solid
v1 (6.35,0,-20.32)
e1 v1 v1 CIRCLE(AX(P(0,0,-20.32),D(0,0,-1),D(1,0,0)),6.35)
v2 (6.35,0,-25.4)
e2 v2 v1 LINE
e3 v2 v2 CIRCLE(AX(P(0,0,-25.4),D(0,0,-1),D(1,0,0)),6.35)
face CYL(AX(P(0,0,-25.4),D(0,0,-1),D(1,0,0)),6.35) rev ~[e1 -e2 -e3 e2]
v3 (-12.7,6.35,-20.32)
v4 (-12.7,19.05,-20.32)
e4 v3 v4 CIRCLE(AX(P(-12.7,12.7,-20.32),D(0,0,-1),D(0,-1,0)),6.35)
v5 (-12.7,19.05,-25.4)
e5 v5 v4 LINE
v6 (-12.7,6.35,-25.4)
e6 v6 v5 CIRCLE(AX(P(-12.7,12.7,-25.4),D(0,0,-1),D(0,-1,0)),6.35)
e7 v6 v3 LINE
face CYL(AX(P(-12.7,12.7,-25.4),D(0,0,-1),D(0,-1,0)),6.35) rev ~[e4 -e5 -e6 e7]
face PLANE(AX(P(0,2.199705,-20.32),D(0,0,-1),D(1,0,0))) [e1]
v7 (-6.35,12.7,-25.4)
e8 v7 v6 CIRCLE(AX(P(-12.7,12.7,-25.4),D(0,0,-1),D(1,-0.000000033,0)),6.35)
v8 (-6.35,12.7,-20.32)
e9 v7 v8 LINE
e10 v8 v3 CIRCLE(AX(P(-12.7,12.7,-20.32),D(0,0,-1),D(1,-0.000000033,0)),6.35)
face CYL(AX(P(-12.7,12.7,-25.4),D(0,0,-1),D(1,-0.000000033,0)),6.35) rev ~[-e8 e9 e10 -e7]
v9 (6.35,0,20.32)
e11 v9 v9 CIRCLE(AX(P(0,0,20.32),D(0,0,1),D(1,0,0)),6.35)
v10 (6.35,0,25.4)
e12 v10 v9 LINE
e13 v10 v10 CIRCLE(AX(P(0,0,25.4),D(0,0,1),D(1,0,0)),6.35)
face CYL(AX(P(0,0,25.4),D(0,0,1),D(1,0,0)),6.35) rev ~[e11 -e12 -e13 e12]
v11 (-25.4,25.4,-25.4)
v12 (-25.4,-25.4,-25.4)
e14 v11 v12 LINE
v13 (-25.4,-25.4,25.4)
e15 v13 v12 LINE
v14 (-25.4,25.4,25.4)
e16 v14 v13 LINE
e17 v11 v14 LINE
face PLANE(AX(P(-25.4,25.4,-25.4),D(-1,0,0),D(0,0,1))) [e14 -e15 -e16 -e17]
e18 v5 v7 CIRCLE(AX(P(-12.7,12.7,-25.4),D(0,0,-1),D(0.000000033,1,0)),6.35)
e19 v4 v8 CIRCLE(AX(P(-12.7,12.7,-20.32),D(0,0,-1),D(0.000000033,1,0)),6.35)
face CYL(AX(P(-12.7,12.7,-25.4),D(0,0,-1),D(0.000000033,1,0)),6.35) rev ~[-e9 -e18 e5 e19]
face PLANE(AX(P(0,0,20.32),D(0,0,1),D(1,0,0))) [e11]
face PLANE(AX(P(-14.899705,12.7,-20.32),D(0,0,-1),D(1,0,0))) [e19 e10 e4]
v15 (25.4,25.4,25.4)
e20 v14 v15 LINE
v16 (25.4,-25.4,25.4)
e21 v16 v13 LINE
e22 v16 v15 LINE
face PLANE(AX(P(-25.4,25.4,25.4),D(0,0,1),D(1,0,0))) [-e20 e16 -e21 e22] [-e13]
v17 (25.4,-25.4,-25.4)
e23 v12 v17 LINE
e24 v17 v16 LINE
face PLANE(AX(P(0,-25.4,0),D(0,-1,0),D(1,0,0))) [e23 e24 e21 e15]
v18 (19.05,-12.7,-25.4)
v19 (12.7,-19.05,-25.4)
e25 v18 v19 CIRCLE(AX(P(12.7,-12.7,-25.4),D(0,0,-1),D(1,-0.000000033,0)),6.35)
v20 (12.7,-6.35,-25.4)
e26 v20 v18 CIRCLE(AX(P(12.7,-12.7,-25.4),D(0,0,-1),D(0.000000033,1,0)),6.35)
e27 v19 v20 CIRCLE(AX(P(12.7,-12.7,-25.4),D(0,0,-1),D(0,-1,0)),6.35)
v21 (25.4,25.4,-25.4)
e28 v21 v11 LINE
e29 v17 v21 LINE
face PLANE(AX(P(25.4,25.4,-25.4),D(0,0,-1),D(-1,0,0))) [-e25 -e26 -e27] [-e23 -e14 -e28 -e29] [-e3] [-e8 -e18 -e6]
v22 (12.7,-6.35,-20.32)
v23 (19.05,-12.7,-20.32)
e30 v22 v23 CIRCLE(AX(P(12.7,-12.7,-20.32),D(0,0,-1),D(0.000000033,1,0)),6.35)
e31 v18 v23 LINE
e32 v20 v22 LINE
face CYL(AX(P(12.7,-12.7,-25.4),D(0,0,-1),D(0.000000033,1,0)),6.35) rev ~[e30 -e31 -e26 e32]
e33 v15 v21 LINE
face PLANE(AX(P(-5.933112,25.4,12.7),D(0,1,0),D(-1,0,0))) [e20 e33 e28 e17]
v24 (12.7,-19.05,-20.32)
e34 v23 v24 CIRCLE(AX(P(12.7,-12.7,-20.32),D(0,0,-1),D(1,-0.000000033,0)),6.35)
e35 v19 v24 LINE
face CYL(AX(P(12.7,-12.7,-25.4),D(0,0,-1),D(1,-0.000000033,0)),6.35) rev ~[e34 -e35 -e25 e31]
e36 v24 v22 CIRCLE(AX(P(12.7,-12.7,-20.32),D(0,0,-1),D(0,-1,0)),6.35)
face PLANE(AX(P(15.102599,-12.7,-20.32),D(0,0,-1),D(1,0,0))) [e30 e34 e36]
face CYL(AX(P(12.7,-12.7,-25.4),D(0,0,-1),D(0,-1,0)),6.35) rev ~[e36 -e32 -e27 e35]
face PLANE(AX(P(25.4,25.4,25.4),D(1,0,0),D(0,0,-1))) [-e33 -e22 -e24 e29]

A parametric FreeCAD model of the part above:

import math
import FreeCAD as App
import Part
import Sketcher
Q = App.Units.Quantity

doc = App.newDocument("Part")
body = doc.addObject("PartDesign::Body", "Body")

# Sketch on XZ plane
sketch1 = body.newObject("Sketcher::SketchObject", "Sketch")
sketch1.AttachmentSupport = (doc.getObject("XZ_Plane"), [""])
sketch1.MapMode = "FlatFace"
sketch1.addGeometry(Part.LineSegment(App.Vector(-25, 25, 0), App.Vector(-25, -25, 0)), False)
sketch1.addGeometry(Part.LineSegment(App.Vector(-25, -25, 0), App.Vector(25, -25, 0)), False)
sketch1.addGeometry(Part.LineSegment(App.Vector(25, -25, 0), App.Vector(25, 25, 0)), False)
sketch1.addGeometry(Part.LineSegment(App.Vector(25, 25, 0), App.Vector(-25, 25, 0)), False)
sketch1.addConstraint(Sketcher.Constraint("Coincident", 0, 2, 1, 1))
sketch1.addConstraint(Sketcher.Constraint("Coincident", 1, 2, 2, 1))
sketch1.addConstraint(Sketcher.Constraint("Coincident", 2, 2, 3, 1))
sketch1.addConstraint(Sketcher.Constraint("Coincident", 3, 2, 0, 1))
sketch1.addConstraint(Sketcher.Constraint("Vertical", 0))
sketch1.addConstraint(Sketcher.Constraint("Horizontal", 1))
sketch1.addConstraint(Sketcher.Constraint("Vertical", 2))
sketch1.addConstraint(Sketcher.Constraint("Horizontal", 3))
sketch1.addConstraint(Sketcher.Constraint("Symmetric", 0, 2, 2, 2, -1, 1))
sketch1.addConstraint(Sketcher.Constraint("Equal", 3, 0))
sketch1.addConstraint(Sketcher.Constraint("DistanceX", 1, 1, 1, 2, Q("2 in")))
pad1 = body.newObject("PartDesign::Pad", "Pad")
pad1.Profile = sketch1
pad1.Length = Q("1 in")

# Sketch on XZ plane
sketch2 = body.newObject("Sketcher::SketchObject", "Sketch001")
sketch2.AttachmentSupport = (doc.getObject("XZ_Plane"), [""])
sketch2.MapMode = "FlatFace"
sketch2.addGeometry(Part.LineSegment(App.Vector(-25, -25, 0), App.Vector(-25, 25, 0)), False)
sketch2.addGeometry(Part.LineSegment(App.Vector(-25, 25, 0), App.Vector(25, 25, 0)), False)
sketch2.addGeometry(Part.LineSegment(App.Vector(25, 25, 0), App.Vector(25, -25, 0)), False)
sketch2.addGeometry(Part.LineSegment(App.Vector(25, -25, 0), App.Vector(-25, -25, 0)), False)
sketch2.addConstraint(Sketcher.Constraint("Coincident", 0, 2, 1, 1))
sketch2.addConstraint(Sketcher.Constraint("Coincident", 1, 2, 2, 1))
sketch2.addConstraint(Sketcher.Constraint("Coincident", 2, 2, 3, 1))
sketch2.addConstraint(Sketcher.Constraint("Coincident", 3, 2, 0, 1))
sketch2.addConstraint(Sketcher.Constraint("Vertical", 0))
sketch2.addConstraint(Sketcher.Constraint("Horizontal", 1))
sketch2.addConstraint(Sketcher.Constraint("Vertical", 2))
sketch2.addConstraint(Sketcher.Constraint("Horizontal", 3))
sketch2.addConstraint(Sketcher.Constraint("Symmetric", 0, 2, 2, 2, -1, 1))
sketch2.addConstraint(Sketcher.Constraint("Equal", 3, 0))
sketch2.addConstraint(Sketcher.Constraint("DistanceX", 1, 1, 1, 2, Q("2 in")))
pad2 = body.newObject("PartDesign::Pad", "Pad001")
pad2.Profile = sketch2
pad2.Length = Q("1 in")
pad2.Reversed = True

# Sketch on XY plane
sketch3 = body.newObject("Sketcher::SketchObject", "Sketch002")
sketch3.AttachmentSupport = (doc.getObject("XY_Plane"), [""])
sketch3.MapMode = "FlatFace"
sketch3.AttachmentOffset = App.Placement(App.Vector(0, 0, 1 * 25.4), App.Rotation())
sketch3.addGeometry(Part.Circle(App.Vector(0, 0, 0), App.Vector(0, 0, 1), 6), False)
sketch3.addConstraint(Sketcher.Constraint("Coincident", 0, 3, -1, 1))
sketch3.addConstraint(Sketcher.Constraint("Diameter", 0, Q("0.5 in")))
pocket1 = body.newObject("PartDesign::Pocket", "Pocket")
pocket1.Profile = sketch3
pocket1.Length = Q("0.2 in")

# Sketch on XZ plane
sketch4 = body.newObject("Sketcher::SketchObject", "Sketch003")
sketch4.AttachmentSupport = (doc.getObject("XZ_Plane"), [""])
sketch4.MapMode = "FlatFace"
sketch4.AttachmentOffset = App.Placement(App.Vector(0, 0, -1 * 25.4), App.Rotation())
sketch4.addGeometry(Part.LineSegment(App.Vector(-25, 25, 0), App.Vector(25, 25, 0)), False)
sketch4.addGeometry(Part.LineSegment(App.Vector(25, 25, 0), App.Vector(25, -25, 0)), False)
sketch4.addGeometry(Part.LineSegment(App.Vector(25, -25, 0), App.Vector(-25, -25, 0)), False)
sketch4.addGeometry(Part.LineSegment(App.Vector(-25, -25, 0), App.Vector(-25, 25, 0)), False)
sketch4.addGeometry(Part.ArcOfCircle(Part.Circle(App.Vector(-13, -13, 0), App.Vector(0, 0, 1), 6), math.radians(90), math.radians(180)), False)
sketch4.addGeometry(Part.ArcOfCircle(Part.Circle(App.Vector(-13, -13, 0), App.Vector(0, 0, 1), 6), math.radians(-180), math.radians(-90)), False)
sketch4.addGeometry(Part.ArcOfCircle(Part.Circle(App.Vector(-13, -13, 0), App.Vector(0, 0, 1), 6), math.radians(-90), math.radians(90)), False)
sketch4.addGeometry(Part.ArcOfCircle(Part.Circle(App.Vector(13, 13, 0), App.Vector(0, 0, 1), 6), math.radians(90), math.radians(180)), False)
sketch4.addGeometry(Part.ArcOfCircle(Part.Circle(App.Vector(13, 13, 0), App.Vector(0, 0, 1), 6), math.radians(-180), math.radians(-90)), False)
sketch4.addGeometry(Part.ArcOfCircle(Part.Circle(App.Vector(13, 13, 0), App.Vector(0, 0, 1), 6), math.radians(-90), math.radians(90)), False)
sketch4.addConstraint(Sketcher.Constraint("Coincident", 0, 2, 1, 1))
sketch4.addConstraint(Sketcher.Constraint("Coincident", 1, 2, 2, 1))
sketch4.addConstraint(Sketcher.Constraint("Coincident", 2, 2, 3, 1))
sketch4.addConstraint(Sketcher.Constraint("Coincident", 3, 2, 0, 1))
sketch4.addConstraint(Sketcher.Constraint("Tangent", 4, 2, 5, 1))
sketch4.addConstraint(Sketcher.Constraint("Tangent", 5, 2, 6, 1))
sketch4.addConstraint(Sketcher.Constraint("Tangent", 6, 2, 4, 1))
sketch4.addConstraint(Sketcher.Constraint("Tangent", 7, 2, 8, 1))
sketch4.addConstraint(Sketcher.Constraint("Tangent", 8, 2, 9, 1))
sketch4.addConstraint(Sketcher.Constraint("Tangent", 9, 2, 7, 1))
sketch4.addConstraint(Sketcher.Constraint("Horizontal", 0))
sketch4.addConstraint(Sketcher.Constraint("Vertical", 1))
sketch4.addConstraint(Sketcher.Constraint("Horizontal", 2))
sketch4.addConstraint(Sketcher.Constraint("Vertical", 3))
sketch4.addConstraint(Sketcher.Constraint("Symmetric", 4, 3, 7, 3, -1, 1))
sketch4.addConstraint(Sketcher.Constraint("Symmetric", 0, 2, 2, 2, -1, 1))
sketch4.addConstraint(Sketcher.Constraint("Horizontal", 6, 3, 4, 2))
sketch4.addConstraint(Sketcher.Constraint("Horizontal", 9, 3, 7, 2))
sketch4.addConstraint(Sketcher.Constraint("Vertical", 6, 3, 5, 2))
sketch4.addConstraint(Sketcher.Constraint("Vertical", 5, 2, 6, 2))
sketch4.addConstraint(Sketcher.Constraint("Vertical", 9, 3, 8, 2))
sketch4.addConstraint(Sketcher.Constraint("Vertical", 8, 2, 9, 2))
sketch4.addConstraint(Sketcher.Constraint("Equal", 2, 1))
sketch4.addConstraint(Sketcher.Constraint("DistanceX", 0, 1, 0, 2, Q("2 in")))
sketch4.addConstraint(Sketcher.Constraint("Radius", 7, Q("0.25 in")))
sketch4.addConstraint(Sketcher.Constraint("DistanceX", 5, 3, 7, 3, Q("0.9999999 in")))
sketch4.addConstraint(Sketcher.Constraint("DistanceY", 5, 3, 7, 3, Q("0.9999999 in")))
sketch4.addConstraint(Sketcher.Constraint("Radius", 4, Q("6.462642 mm")))
pocket2 = body.newObject("PartDesign::Pocket", "Pocket001")
pocket2.Profile = sketch4
pocket2.Length = Q("0.2 in")
pocket2.Reversed = True

# Sketch on XY plane
sketch5 = body.newObject("Sketcher::SketchObject", "Sketch004")
sketch5.AttachmentSupport = (doc.getObject("XY_Plane"), [""])
sketch5.MapMode = "FlatFace"
sketch5.AttachmentOffset = App.Placement(App.Vector(0, 0, -1 * 25.4), App.Rotation())
sketch5.addGeometry(Part.ArcOfCircle(Part.Circle(App.Vector(-13, 13, 0), App.Vector(0, 0, 1), 6), math.radians(90), math.radians(270)), False)
sketch5.addGeometry(Part.ArcOfCircle(Part.Circle(App.Vector(-13, 13, 0), App.Vector(0, 0, 1), 6), math.radians(0), math.radians(90)), False)
sketch5.addGeometry(Part.ArcOfCircle(Part.Circle(App.Vector(-13, 13, 0), App.Vector(0, 0, 1), 6), math.radians(-90), math.radians(0)), False)
sketch5.addGeometry(Part.Circle(App.Vector(0, 0, 0), App.Vector(0, 0, 1), 6), False)
sketch5.addGeometry(Part.ArcOfCircle(Part.Circle(App.Vector(13, -13, 0), App.Vector(0, 0, 1), 6), math.radians(0), math.radians(90)), False)
sketch5.addGeometry(Part.ArcOfCircle(Part.Circle(App.Vector(13, -13, 0), App.Vector(0, 0, 1), 6), math.radians(-90), math.radians(0)), False)
sketch5.addGeometry(Part.ArcOfCircle(Part.Circle(App.Vector(13, -13, 0), App.Vector(0, 0, 1), 6), math.radians(90), math.radians(270)), False)
sketch5.addConstraint(Sketcher.Constraint("Tangent", 0, 1, 1, 2))
sketch5.addConstraint(Sketcher.Constraint("Tangent", 1, 1, 2, 2))
sketch5.addConstraint(Sketcher.Constraint("Tangent", 2, 1, 0, 2))
sketch5.addConstraint(Sketcher.Constraint("Tangent", 4, 1, 5, 2))
sketch5.addConstraint(Sketcher.Constraint("Tangent", 5, 1, 6, 2))
sketch5.addConstraint(Sketcher.Constraint("Tangent", 6, 1, 4, 2))
sketch5.addConstraint(Sketcher.Constraint("Coincident", 3, 3, -1, 1))
sketch5.addConstraint(Sketcher.Constraint("Equal", 2, 3))
sketch5.addConstraint(Sketcher.Constraint("Equal", 3, 4))
sketch5.addConstraint(Sketcher.Constraint("Symmetric", 0, 3, 4, 3, -1, 1))
sketch5.addConstraint(Sketcher.Constraint("Horizontal", 2, 3, 1, 1))
sketch5.addConstraint(Sketcher.Constraint("Horizontal", 6, 3, 4, 1))
sketch5.addConstraint(Sketcher.Constraint("Vertical", 2, 3, 0, 1))
sketch5.addConstraint(Sketcher.Constraint("Vertical", 0, 1, 2, 1))
sketch5.addConstraint(Sketcher.Constraint("Vertical", 6, 3, 5, 1))
sketch5.addConstraint(Sketcher.Constraint("Vertical", 5, 1, 6, 1))
sketch5.addConstraint(Sketcher.Constraint("Diameter", 3, Q("0.5 in")))
sketch5.addConstraint(Sketcher.Constraint("DistanceX", 0, 3, 4, 3, Q("1 in")))
sketch5.addConstraint(Sketcher.Constraint("DistanceY", 4, 3, 0, 3, Q("1 in")))
pocket3 = body.newObject("PartDesign::Pocket", "Pocket002")
pocket3.Profile = sketch5
pocket3.Length = Q("0.2 in")
pocket3.Reversed = True

# Sketch on XZ plane
sketch6 = body.newObject("Sketcher::SketchObject", "Sketch005")
sketch6.AttachmentSupport = (doc.getObject("XZ_Plane"), [""])
sketch6.MapMode = "FlatFace"
sketch6.AttachmentOffset = App.Placement(App.Vector(0, 0, -1 * 25.4), App.Rotation())
sketch6.addGeometry(Part.LineSegment(App.Vector(-25, 25, 0), App.Vector(25, 25, 0)), False)
sketch6.addGeometry(Part.LineSegment(App.Vector(25, 25, 0), App.Vector(25, -25, 0)), False)
sketch6.addGeometry(Part.LineSegment(App.Vector(25, -25, 0), App.Vector(-25, -25, 0)), False)
sketch6.addGeometry(Part.LineSegment(App.Vector(-25, -25, 0), App.Vector(-25, 25, 0)), False)
sketch6.addGeometry(Part.ArcOfCircle(Part.Circle(App.Vector(13, 13, 0), App.Vector(0, 0, 1), 6), math.radians(90), math.radians(180)), False)
sketch6.addGeometry(Part.ArcOfCircle(Part.Circle(App.Vector(13, 13, 0), App.Vector(0, 0, 1), 6), math.radians(-180), math.radians(-90)), False)
sketch6.addGeometry(Part.ArcOfCircle(Part.Circle(App.Vector(13, 13, 0), App.Vector(0, 0, 1), 6), math.radians(-90), math.radians(90)), False)
sketch6.addGeometry(Part.ArcOfCircle(Part.Circle(App.Vector(-13, -13, 0), App.Vector(0, 0, 1), 6), math.radians(-90), math.radians(90)), False)
sketch6.addGeometry(Part.ArcOfCircle(Part.Circle(App.Vector(-13, -13, 0), App.Vector(0, 0, 1), 6), math.radians(90), math.radians(180)), False)
sketch6.addGeometry(Part.ArcOfCircle(Part.Circle(App.Vector(-13, -13, 0), App.Vector(0, 0, 1), 6), math.radians(-180), math.radians(-90)), False)
sketch6.addConstraint(Sketcher.Constraint("Coincident", 0, 2, 1, 1))
sketch6.addConstraint(Sketcher.Constraint("Coincident", 1, 2, 2, 1))
sketch6.addConstraint(Sketcher.Constraint("Coincident", 2, 2, 3, 1))
sketch6.addConstraint(Sketcher.Constraint("Coincident", 3, 2, 0, 1))
sketch6.addConstraint(Sketcher.Constraint("Tangent", 4, 2, 5, 1))
sketch6.addConstraint(Sketcher.Constraint("Tangent", 5, 2, 6, 1))
sketch6.addConstraint(Sketcher.Constraint("Tangent", 6, 2, 4, 1))
sketch6.addConstraint(Sketcher.Constraint("Tangent", 7, 2, 8, 1))
sketch6.addConstraint(Sketcher.Constraint("Tangent", 8, 2, 9, 1))
sketch6.addConstraint(Sketcher.Constraint("Tangent", 9, 2, 7, 1))
sketch6.addConstraint(Sketcher.Constraint("Horizontal", 0))
sketch6.addConstraint(Sketcher.Constraint("Vertical", 1))
sketch6.addConstraint(Sketcher.Constraint("Horizontal", 2))
sketch6.addConstraint(Sketcher.Constraint("Vertical", 3))
sketch6.addConstraint(Sketcher.Constraint("Symmetric", 4, 3, 7, 3, -1, 1))
sketch6.addConstraint(Sketcher.Constraint("Symmetric", 0, 2, 2, 2, -1, 1))
sketch6.addConstraint(Sketcher.Constraint("Horizontal", 6, 3, 4, 2))
sketch6.addConstraint(Sketcher.Constraint("Horizontal", 9, 3, 8, 2))
sketch6.addConstraint(Sketcher.Constraint("Vertical", 6, 3, 5, 2))
sketch6.addConstraint(Sketcher.Constraint("Vertical", 5, 2, 6, 2))
sketch6.addConstraint(Sketcher.Constraint("Vertical", 9, 3, 7, 2))
sketch6.addConstraint(Sketcher.Constraint("Vertical", 7, 2, 9, 2))
sketch6.addConstraint(Sketcher.Constraint("Equal", 2, 1))
sketch6.addConstraint(Sketcher.Constraint("DistanceX", 0, 1, 0, 2, Q("2 in")))
sketch6.addConstraint(Sketcher.Constraint("Radius", 4, Q("0.25 in")))
sketch6.addConstraint(Sketcher.Constraint("DistanceX", 7, 3, 4, 3, Q("1 in")))
sketch6.addConstraint(Sketcher.Constraint("DistanceY", 7, 3, 4, 3, Q("1 in")))
sketch6.addConstraint(Sketcher.Constraint("Radius", 7, Q("6.46264 mm")))
pad3 = body.newObject("PartDesign::Pad", "Pad002")
pad3.Profile = sketch6
pad3.Length = Q("0.25 in")

doc.recompute()
